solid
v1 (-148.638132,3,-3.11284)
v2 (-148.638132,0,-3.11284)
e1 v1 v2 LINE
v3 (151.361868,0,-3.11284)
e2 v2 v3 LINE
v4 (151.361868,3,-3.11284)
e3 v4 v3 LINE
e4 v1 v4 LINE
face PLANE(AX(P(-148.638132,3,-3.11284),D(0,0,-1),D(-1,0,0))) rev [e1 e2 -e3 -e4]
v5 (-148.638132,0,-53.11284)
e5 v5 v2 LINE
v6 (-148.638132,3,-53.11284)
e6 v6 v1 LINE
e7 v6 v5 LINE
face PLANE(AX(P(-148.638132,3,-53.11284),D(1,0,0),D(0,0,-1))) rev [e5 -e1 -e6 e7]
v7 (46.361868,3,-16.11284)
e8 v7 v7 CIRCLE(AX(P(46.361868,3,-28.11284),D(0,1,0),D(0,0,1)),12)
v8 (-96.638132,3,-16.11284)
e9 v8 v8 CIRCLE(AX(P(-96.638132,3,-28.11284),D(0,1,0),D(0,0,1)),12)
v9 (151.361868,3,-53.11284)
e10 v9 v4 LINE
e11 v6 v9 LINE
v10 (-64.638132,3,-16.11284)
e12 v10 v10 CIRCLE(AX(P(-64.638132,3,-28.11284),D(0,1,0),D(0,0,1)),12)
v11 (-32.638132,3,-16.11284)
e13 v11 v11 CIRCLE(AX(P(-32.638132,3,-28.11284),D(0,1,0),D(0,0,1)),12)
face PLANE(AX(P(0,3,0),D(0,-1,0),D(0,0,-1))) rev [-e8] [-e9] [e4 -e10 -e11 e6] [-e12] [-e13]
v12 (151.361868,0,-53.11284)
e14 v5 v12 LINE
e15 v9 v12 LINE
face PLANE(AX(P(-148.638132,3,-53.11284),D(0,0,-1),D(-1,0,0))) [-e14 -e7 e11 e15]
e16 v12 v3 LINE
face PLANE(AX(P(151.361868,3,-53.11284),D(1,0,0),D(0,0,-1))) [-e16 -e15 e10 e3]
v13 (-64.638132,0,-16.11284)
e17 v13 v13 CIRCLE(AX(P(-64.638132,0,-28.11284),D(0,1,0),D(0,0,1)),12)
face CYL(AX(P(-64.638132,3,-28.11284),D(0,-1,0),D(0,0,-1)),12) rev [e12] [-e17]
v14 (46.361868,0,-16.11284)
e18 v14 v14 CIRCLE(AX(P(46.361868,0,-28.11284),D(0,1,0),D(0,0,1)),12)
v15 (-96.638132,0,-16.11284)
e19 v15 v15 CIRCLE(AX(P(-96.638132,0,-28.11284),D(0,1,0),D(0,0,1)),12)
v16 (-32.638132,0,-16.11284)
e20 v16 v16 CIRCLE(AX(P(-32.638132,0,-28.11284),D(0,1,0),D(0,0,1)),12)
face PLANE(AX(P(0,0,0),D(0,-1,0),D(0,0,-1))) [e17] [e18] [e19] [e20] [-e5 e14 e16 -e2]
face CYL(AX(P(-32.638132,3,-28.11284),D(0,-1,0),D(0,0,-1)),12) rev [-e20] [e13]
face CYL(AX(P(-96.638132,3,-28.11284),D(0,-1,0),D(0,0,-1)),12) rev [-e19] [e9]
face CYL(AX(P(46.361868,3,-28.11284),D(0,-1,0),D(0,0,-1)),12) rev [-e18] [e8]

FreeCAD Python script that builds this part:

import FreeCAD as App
import Part
import Sketcher

doc = App.newDocument("Part")
body = doc.addObject("PartDesign::Body", "Body")

sketch1 = body.newObject("Sketcher::SketchObject", "Sketch")
sketch1.AttachmentSupport = (doc.getObject("XZ_Plane"), [""])
sketch1.MapMode = "FlatFace"
sketch1.addGeometry([
    Part.LineSegment(App.Vector(-149, -53, 0), App.Vector(-149, -3, 0)),
    Part.LineSegment(App.Vector(-149, -3, 0), App.Vector(151, -3, 0)),
    Part.LineSegment(App.Vector(151, -3, 0), App.Vector(151, -53, 0)),
    Part.LineSegment(App.Vector(151, -53, 0), App.Vector(-149, -53, 0)),
    Part.Circle(App.Vector(-97, -28, 0), App.Vector(0, 0, 1), 12),
    Part.Circle(App.Vector(-65, -28, 0), App.Vector(0, 0, 1), 12),
    Part.Circle(App.Vector(-33, -28, 0), App.Vector(0, 0, 1), 12),
    Part.Circle(App.Vector(46, -28, 0), App.Vector(0, 0, 1), 12),
], False)
sketch1.addConstraint([
    Sketcher.Constraint("Coincident", 0, 2, 1, 1),
    Sketcher.Constraint("Coincident", 1, 2, 2, 1),
    Sketcher.Constraint("Coincident", 2, 2, 3, 1),
    Sketcher.Constraint("Coincident", 3, 2, 0, 1),
    Sketcher.Constraint("Vertical", 0),
    Sketcher.Constraint("Horizontal", 1),
    Sketcher.Constraint("Vertical", 2),
    Sketcher.Constraint("Horizontal", 3),
    Sketcher.Constraint("Equal", 4, 5),
    Sketcher.Constraint("Equal", 5, 6),
    Sketcher.Constraint("Equal", 6, 7),
    Sketcher.Constraint("Horizontal", 4, 3, 5, 3),
    Sketcher.Constraint("Horizontal", 5, 3, 6, 3),
    Sketcher.Constraint("Horizontal", 6, 3, 7, 3),
    Sketcher.Constraint("Diameter", 4, 24.0),
    Sketcher.Constraint("DistanceX", 1, 1, 1, 2, 300.0),
    Sketcher.Constraint("DistanceY", 0, 1, 0, 2, 50.0),
    Sketcher.Constraint("DistanceX", 4, 3, 5, 3, 32.0),
    Sketcher.Constraint("DistanceX", 5, 3, 6, 3, 32.0),
    Sketcher.Constraint("DistanceX", 6, 3, 7, 3, 79.0),
    Sketcher.Constraint("DistanceX", 0, 2, 4, 3, 52.0),
    Sketcher.Constraint("DistanceY", 4, 3, 0, 2, 25.0),
    Sketcher.Constraint("DistanceY", 4, 3, -1, 1, 28.11284),
    Sketcher.Constraint("DistanceX", 4, 3, -1, 1, 96.638132),
])
pad1 = body.newObject("PartDesign::Pad", "Pad")
pad1.Profile = sketch1
pad1.Length = 3
pad1.Reversed = True

doc.recompute()
